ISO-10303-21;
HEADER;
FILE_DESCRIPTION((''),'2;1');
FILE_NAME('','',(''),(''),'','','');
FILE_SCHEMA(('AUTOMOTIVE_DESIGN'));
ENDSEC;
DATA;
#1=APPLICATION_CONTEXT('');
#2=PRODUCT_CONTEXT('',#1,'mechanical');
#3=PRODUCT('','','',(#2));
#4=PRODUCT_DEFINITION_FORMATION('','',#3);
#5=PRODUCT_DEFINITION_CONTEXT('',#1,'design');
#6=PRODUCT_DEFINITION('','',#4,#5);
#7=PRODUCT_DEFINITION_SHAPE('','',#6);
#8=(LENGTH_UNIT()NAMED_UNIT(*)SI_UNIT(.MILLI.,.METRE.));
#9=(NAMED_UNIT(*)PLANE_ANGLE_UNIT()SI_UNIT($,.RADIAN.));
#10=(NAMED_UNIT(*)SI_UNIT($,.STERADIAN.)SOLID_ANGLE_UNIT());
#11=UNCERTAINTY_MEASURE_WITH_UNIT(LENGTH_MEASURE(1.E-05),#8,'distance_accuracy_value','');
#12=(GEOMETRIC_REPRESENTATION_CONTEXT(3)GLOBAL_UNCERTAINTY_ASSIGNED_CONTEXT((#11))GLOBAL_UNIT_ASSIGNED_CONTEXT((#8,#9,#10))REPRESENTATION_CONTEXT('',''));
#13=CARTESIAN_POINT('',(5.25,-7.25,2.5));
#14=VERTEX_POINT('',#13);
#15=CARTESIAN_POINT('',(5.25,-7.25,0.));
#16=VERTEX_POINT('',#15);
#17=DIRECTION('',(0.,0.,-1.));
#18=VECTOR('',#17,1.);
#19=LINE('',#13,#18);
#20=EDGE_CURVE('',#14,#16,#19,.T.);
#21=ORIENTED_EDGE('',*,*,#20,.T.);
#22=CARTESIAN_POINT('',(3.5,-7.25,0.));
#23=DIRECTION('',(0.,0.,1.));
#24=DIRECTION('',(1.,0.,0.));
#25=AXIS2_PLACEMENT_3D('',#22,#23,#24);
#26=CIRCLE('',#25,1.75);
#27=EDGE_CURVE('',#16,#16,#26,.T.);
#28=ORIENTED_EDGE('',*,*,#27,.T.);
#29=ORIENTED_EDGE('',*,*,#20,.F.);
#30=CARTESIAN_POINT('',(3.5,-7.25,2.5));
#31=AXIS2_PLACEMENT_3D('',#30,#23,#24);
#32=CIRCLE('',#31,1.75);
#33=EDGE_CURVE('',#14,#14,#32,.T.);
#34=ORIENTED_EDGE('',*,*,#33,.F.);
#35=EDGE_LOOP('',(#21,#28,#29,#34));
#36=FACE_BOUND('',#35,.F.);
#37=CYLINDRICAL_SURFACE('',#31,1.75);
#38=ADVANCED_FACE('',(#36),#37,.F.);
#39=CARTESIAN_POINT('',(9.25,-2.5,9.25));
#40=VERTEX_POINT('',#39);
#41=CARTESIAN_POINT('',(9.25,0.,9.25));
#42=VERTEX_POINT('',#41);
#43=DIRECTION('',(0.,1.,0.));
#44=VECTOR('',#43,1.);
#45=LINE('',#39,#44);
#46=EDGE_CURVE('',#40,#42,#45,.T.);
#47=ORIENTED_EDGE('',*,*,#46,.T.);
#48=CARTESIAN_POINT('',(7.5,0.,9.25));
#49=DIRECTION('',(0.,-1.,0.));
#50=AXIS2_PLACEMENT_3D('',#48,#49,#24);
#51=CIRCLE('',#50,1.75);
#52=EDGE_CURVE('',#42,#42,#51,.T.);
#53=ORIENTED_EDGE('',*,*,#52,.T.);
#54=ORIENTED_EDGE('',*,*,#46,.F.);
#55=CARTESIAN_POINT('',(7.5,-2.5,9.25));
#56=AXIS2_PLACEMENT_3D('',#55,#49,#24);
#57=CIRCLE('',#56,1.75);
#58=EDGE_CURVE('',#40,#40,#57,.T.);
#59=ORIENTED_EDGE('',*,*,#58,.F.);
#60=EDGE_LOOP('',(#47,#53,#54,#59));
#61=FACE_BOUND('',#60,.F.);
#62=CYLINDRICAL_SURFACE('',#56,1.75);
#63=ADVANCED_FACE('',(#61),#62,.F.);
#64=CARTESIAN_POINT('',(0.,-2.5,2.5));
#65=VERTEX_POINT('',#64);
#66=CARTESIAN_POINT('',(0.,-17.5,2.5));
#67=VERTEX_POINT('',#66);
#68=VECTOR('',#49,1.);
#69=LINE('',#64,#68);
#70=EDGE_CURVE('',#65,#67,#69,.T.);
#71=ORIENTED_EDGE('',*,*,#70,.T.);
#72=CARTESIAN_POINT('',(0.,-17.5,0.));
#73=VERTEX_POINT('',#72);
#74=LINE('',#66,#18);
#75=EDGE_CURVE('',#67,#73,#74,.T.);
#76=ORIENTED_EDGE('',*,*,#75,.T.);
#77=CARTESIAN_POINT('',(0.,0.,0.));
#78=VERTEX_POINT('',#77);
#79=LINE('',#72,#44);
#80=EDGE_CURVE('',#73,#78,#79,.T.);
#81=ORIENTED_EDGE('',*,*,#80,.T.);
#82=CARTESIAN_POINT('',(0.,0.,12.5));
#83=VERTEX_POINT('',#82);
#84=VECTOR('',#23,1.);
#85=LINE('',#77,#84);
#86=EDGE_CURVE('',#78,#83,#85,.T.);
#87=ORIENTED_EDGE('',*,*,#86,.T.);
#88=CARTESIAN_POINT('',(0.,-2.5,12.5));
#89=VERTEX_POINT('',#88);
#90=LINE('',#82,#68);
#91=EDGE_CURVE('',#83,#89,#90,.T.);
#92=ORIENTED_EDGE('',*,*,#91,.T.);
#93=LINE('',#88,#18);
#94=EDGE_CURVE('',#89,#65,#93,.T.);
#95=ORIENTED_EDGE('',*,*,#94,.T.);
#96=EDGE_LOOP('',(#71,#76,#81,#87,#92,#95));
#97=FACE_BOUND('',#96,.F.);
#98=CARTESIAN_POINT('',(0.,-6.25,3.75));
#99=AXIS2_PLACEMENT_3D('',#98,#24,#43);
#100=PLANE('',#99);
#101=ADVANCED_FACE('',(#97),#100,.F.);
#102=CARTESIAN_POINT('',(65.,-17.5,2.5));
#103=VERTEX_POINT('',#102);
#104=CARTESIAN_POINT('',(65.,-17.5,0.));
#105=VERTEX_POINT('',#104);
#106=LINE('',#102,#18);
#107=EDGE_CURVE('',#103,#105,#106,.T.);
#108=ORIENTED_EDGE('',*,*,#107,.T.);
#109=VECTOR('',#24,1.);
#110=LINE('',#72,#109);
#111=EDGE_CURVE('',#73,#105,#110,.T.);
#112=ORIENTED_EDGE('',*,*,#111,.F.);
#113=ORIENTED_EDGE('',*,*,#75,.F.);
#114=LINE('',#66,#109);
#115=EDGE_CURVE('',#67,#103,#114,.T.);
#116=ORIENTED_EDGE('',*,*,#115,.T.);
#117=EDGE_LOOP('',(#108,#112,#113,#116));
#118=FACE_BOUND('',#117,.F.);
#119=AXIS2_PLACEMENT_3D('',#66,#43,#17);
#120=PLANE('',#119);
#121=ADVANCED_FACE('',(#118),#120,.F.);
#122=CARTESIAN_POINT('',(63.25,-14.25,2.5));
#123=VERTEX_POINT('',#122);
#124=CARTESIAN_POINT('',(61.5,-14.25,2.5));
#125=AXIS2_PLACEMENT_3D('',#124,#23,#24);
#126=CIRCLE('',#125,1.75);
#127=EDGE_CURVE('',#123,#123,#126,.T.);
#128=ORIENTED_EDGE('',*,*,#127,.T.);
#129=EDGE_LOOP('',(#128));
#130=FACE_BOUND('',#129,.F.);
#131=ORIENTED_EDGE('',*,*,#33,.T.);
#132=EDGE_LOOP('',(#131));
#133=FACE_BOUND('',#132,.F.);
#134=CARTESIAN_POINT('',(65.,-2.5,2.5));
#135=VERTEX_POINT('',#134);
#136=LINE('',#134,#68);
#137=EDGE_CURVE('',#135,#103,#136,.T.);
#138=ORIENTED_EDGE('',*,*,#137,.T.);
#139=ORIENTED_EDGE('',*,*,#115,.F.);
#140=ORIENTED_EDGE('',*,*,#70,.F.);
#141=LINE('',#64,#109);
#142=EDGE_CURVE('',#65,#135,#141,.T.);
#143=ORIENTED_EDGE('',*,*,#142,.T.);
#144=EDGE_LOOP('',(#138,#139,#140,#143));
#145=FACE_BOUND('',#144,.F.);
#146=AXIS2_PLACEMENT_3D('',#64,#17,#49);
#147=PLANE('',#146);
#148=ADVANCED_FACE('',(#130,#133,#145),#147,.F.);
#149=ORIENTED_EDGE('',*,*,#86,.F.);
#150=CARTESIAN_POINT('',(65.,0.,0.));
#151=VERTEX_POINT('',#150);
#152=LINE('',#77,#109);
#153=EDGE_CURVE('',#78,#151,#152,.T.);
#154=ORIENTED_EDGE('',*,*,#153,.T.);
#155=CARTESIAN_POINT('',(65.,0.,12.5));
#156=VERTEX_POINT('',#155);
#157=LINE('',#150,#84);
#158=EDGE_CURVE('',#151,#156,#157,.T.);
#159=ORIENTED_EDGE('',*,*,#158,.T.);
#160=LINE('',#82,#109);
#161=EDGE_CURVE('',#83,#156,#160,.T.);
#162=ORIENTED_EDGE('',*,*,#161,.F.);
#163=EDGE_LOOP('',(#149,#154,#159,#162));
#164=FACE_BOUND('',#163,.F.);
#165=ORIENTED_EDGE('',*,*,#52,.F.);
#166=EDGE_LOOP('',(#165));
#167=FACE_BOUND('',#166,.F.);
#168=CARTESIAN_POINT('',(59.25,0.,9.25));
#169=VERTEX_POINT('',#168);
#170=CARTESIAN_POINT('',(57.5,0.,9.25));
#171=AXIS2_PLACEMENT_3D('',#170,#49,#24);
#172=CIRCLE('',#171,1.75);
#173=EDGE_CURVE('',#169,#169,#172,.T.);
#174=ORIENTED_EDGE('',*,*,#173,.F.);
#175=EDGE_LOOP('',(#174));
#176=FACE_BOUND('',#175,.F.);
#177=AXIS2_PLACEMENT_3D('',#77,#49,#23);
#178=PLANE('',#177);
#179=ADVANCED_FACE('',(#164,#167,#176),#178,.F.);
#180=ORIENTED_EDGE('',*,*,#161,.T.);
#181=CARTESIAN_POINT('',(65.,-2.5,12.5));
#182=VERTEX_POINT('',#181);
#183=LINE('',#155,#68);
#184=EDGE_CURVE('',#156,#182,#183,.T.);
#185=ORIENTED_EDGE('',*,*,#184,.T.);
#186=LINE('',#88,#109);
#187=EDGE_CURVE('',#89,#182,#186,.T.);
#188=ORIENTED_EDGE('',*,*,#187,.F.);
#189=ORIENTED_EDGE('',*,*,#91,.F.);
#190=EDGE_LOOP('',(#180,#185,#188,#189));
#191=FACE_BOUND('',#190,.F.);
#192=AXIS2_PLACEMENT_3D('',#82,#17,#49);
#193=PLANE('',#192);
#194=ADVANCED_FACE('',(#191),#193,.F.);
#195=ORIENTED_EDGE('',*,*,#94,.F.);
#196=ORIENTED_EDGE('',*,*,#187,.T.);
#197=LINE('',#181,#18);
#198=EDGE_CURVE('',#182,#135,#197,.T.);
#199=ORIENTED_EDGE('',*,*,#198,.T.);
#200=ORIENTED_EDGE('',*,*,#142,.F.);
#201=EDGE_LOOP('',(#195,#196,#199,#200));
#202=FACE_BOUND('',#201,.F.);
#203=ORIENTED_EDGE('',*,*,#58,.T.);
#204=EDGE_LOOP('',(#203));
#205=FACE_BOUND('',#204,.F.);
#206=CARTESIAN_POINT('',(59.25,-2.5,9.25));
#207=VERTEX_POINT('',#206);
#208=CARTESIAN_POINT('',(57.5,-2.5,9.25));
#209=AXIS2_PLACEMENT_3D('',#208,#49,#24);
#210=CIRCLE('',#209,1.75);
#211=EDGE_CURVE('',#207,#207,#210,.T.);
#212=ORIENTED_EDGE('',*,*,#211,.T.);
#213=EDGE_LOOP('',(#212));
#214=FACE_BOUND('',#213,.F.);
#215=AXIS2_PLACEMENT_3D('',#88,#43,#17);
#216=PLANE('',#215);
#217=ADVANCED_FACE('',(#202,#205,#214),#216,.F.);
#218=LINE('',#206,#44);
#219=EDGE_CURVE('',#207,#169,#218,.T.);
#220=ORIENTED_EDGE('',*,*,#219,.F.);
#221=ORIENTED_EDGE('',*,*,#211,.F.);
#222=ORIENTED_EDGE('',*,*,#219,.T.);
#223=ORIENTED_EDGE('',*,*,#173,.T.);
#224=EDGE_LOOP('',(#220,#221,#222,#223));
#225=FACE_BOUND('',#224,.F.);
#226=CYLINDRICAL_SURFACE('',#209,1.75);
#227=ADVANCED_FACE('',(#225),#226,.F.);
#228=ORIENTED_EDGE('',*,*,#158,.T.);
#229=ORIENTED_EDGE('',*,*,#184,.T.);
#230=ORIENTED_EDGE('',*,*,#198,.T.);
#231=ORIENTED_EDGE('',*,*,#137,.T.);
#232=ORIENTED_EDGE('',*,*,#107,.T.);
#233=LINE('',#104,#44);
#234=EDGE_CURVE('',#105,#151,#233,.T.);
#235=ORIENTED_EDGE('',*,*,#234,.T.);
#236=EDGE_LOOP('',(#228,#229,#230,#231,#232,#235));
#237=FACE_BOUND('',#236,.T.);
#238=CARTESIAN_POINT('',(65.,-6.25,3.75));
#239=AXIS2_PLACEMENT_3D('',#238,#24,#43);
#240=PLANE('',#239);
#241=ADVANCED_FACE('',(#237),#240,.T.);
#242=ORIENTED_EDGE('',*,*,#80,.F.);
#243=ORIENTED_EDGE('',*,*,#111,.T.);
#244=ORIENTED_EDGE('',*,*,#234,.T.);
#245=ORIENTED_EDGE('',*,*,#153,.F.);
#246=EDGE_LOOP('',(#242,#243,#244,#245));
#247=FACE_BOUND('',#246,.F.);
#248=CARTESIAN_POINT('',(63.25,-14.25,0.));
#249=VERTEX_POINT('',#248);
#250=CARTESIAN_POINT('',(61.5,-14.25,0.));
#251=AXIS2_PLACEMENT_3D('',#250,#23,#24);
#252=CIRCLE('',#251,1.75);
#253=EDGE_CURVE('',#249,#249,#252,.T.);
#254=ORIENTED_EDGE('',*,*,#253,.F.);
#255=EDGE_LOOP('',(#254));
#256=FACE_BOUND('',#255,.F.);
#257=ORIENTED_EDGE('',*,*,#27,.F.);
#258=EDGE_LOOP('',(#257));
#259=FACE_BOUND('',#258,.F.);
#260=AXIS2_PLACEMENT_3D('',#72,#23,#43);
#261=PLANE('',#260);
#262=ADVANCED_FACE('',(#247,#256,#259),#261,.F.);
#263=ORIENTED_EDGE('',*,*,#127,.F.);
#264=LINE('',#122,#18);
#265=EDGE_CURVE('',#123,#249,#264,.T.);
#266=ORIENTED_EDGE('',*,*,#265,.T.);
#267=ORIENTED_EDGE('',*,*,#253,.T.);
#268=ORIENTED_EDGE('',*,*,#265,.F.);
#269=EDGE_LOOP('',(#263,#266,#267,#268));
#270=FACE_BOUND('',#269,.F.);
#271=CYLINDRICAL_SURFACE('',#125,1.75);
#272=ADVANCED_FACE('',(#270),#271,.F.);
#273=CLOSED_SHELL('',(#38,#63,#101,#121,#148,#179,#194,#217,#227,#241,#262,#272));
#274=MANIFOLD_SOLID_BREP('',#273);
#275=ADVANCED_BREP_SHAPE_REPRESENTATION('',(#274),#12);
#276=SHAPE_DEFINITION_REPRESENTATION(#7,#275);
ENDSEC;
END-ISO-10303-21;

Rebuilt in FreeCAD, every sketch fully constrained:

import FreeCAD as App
import Part
import Sketcher
from FreeCAD import Vector
Q = App.Units.Quantity

doc = App.newDocument("Part")
body = doc.addObject("PartDesign::Body", "Body")

sketch1 = doc.addObject("Sketcher::SketchObject", "Sketch")
body.addObject(sketch1)
sketch1.AttachmentSupport = (doc.YZ_Plane, [""])
sketch1.MapMode = "FlatFace"
sketch1.addGeometry([
    Part.LineSegment(Vector(-17.5, 0, 0), Vector(0, 0, 0)),
    Part.LineSegment(Vector(0, 0, 0), Vector(0, 12.5, 0)),
    Part.LineSegment(Vector(0, 12.5, 0), Vector(-2.5, 12.5, 0)),
    Part.LineSegment(Vector(-2.5, 12.5, 0), Vector(-2.5, 2.5, 0)),
    Part.LineSegment(Vector(-2.5, 2.5, 0), Vector(-17.5, 2.5, 0)),
    Part.LineSegment(Vector(-17.5, 2.5, 0), Vector(-17.5, 0, 0)),
], False)
sketch1.addConstraint([
    Sketcher.Constraint("Coincident", 0, 2, 1, 1),
    Sketcher.Constraint("Coincident", 1, 2, 2, 1),
    Sketcher.Constraint("Coincident", 2, 2, 3, 1),
    Sketcher.Constraint("Coincident", 3, 2, 4, 1),
    Sketcher.Constraint("Coincident", 4, 2, 5, 1),
    Sketcher.Constraint("Coincident", 5, 2, 0, 1),
    Sketcher.Constraint("Horizontal", 0),
    Sketcher.Constraint("Vertical", 1),
    Sketcher.Constraint("Horizontal", 2),
    Sketcher.Constraint("Vertical", 3),
    Sketcher.Constraint("Horizontal", 4),
    Sketcher.Constraint("Vertical", 5),
    Sketcher.Constraint("Coincident", 0, 2, -1, 1),
    Sketcher.Constraint("Equal", 2, 5),
    Sketcher.Constraint("DistanceX", 4, 2, 4, 1, Q("15 mm")),
    Sketcher.Constraint("DistanceY", 3, 2, 3, 1, Q("10 mm")),
    Sketcher.Constraint("DistanceX", 0, 1, 0, 2, Q("17.5 mm")),
])
pad1 = doc.addObject("PartDesign::Pad", "Pad")
body.addObject(pad1)
pad1.Profile = sketch1
pad1.Length = 65

sketch2 = doc.addObject("Sketcher::SketchObject", "Sketch001")
body.addObject(sketch2)
sketch2.AttachmentSupport = (doc.XZ_Plane, [""])
sketch2.MapMode = "FlatFace"
sketch2.AttachmentOffset = App.Placement(Vector(0, 0, 2.5), App.Rotation())
sketch2.addGeometry([
    Part.Circle(Vector(7.5, 9.25, 0), Vector(0, 0, 1), 1.75),
    Part.Circle(Vector(57.5, 9.25, 0), Vector(0, 0, 1), 1.75),
], False)
sketch2.addConstraint([
    Sketcher.Constraint("Equal", 0, 1),
    Sketcher.Constraint("Horizontal", 0, 3, 1, 3),
    Sketcher.Constraint("Diameter", 0, Q("3.5 mm")),
    Sketcher.Constraint("DistanceX", 0, 3, 1, 3, Q("50 mm")),
    Sketcher.Constraint("DistanceX", -1, 1, 0, 3, Q("7.5 mm")),
    Sketcher.Constraint("DistanceY", -1, 1, 0, 3, Q("9.25 mm")),
])
pocket1 = doc.addObject("PartDesign::Pocket", "Pocket")
body.addObject(pocket1)
pocket1.Profile = sketch2
pocket1.Type = "ThroughAll"

sketch3 = doc.addObject("Sketcher::SketchObject", "Sketch002")
body.addObject(sketch3)
sketch3.AttachmentSupport = (doc.XY_Plane, [""])
sketch3.MapMode = "FlatFace"
sketch3.AttachmentOffset = App.Placement(Vector(0, 0, 2.5), App.Rotation())
sketch3.addGeometry([
    Part.Circle(Vector(3.5, -7.25, 0), Vector(0, 0, 1), 1.75),
    Part.Circle(Vector(61.5, -14.25, 0), Vector(0, 0, 1), 1.75),
], False)
sketch3.addConstraint([
    Sketcher.Constraint("Equal", 0, 1),
    Sketcher.Constraint("Diameter", 0, Q("3.5 mm")),
    Sketcher.Constraint("DistanceX", 0, 3, 1, 3, Q("58 mm")),
    Sketcher.Constraint("DistanceY", 1, 3, 0, 3, Q("7 mm")),
    Sketcher.Constraint("DistanceX", -1, 1, 0, 3, Q("3.5 mm")),
    Sketcher.Constraint("DistanceY", 0, 3, -1, 1, Q("7.25 mm")),
])
pocket2 = doc.addObject("PartDesign::Pocket", "Pocket001")
body.addObject(pocket2)
pocket2.Profile = sketch3
pocket2.Type = "ThroughAll"

doc.recompute()
